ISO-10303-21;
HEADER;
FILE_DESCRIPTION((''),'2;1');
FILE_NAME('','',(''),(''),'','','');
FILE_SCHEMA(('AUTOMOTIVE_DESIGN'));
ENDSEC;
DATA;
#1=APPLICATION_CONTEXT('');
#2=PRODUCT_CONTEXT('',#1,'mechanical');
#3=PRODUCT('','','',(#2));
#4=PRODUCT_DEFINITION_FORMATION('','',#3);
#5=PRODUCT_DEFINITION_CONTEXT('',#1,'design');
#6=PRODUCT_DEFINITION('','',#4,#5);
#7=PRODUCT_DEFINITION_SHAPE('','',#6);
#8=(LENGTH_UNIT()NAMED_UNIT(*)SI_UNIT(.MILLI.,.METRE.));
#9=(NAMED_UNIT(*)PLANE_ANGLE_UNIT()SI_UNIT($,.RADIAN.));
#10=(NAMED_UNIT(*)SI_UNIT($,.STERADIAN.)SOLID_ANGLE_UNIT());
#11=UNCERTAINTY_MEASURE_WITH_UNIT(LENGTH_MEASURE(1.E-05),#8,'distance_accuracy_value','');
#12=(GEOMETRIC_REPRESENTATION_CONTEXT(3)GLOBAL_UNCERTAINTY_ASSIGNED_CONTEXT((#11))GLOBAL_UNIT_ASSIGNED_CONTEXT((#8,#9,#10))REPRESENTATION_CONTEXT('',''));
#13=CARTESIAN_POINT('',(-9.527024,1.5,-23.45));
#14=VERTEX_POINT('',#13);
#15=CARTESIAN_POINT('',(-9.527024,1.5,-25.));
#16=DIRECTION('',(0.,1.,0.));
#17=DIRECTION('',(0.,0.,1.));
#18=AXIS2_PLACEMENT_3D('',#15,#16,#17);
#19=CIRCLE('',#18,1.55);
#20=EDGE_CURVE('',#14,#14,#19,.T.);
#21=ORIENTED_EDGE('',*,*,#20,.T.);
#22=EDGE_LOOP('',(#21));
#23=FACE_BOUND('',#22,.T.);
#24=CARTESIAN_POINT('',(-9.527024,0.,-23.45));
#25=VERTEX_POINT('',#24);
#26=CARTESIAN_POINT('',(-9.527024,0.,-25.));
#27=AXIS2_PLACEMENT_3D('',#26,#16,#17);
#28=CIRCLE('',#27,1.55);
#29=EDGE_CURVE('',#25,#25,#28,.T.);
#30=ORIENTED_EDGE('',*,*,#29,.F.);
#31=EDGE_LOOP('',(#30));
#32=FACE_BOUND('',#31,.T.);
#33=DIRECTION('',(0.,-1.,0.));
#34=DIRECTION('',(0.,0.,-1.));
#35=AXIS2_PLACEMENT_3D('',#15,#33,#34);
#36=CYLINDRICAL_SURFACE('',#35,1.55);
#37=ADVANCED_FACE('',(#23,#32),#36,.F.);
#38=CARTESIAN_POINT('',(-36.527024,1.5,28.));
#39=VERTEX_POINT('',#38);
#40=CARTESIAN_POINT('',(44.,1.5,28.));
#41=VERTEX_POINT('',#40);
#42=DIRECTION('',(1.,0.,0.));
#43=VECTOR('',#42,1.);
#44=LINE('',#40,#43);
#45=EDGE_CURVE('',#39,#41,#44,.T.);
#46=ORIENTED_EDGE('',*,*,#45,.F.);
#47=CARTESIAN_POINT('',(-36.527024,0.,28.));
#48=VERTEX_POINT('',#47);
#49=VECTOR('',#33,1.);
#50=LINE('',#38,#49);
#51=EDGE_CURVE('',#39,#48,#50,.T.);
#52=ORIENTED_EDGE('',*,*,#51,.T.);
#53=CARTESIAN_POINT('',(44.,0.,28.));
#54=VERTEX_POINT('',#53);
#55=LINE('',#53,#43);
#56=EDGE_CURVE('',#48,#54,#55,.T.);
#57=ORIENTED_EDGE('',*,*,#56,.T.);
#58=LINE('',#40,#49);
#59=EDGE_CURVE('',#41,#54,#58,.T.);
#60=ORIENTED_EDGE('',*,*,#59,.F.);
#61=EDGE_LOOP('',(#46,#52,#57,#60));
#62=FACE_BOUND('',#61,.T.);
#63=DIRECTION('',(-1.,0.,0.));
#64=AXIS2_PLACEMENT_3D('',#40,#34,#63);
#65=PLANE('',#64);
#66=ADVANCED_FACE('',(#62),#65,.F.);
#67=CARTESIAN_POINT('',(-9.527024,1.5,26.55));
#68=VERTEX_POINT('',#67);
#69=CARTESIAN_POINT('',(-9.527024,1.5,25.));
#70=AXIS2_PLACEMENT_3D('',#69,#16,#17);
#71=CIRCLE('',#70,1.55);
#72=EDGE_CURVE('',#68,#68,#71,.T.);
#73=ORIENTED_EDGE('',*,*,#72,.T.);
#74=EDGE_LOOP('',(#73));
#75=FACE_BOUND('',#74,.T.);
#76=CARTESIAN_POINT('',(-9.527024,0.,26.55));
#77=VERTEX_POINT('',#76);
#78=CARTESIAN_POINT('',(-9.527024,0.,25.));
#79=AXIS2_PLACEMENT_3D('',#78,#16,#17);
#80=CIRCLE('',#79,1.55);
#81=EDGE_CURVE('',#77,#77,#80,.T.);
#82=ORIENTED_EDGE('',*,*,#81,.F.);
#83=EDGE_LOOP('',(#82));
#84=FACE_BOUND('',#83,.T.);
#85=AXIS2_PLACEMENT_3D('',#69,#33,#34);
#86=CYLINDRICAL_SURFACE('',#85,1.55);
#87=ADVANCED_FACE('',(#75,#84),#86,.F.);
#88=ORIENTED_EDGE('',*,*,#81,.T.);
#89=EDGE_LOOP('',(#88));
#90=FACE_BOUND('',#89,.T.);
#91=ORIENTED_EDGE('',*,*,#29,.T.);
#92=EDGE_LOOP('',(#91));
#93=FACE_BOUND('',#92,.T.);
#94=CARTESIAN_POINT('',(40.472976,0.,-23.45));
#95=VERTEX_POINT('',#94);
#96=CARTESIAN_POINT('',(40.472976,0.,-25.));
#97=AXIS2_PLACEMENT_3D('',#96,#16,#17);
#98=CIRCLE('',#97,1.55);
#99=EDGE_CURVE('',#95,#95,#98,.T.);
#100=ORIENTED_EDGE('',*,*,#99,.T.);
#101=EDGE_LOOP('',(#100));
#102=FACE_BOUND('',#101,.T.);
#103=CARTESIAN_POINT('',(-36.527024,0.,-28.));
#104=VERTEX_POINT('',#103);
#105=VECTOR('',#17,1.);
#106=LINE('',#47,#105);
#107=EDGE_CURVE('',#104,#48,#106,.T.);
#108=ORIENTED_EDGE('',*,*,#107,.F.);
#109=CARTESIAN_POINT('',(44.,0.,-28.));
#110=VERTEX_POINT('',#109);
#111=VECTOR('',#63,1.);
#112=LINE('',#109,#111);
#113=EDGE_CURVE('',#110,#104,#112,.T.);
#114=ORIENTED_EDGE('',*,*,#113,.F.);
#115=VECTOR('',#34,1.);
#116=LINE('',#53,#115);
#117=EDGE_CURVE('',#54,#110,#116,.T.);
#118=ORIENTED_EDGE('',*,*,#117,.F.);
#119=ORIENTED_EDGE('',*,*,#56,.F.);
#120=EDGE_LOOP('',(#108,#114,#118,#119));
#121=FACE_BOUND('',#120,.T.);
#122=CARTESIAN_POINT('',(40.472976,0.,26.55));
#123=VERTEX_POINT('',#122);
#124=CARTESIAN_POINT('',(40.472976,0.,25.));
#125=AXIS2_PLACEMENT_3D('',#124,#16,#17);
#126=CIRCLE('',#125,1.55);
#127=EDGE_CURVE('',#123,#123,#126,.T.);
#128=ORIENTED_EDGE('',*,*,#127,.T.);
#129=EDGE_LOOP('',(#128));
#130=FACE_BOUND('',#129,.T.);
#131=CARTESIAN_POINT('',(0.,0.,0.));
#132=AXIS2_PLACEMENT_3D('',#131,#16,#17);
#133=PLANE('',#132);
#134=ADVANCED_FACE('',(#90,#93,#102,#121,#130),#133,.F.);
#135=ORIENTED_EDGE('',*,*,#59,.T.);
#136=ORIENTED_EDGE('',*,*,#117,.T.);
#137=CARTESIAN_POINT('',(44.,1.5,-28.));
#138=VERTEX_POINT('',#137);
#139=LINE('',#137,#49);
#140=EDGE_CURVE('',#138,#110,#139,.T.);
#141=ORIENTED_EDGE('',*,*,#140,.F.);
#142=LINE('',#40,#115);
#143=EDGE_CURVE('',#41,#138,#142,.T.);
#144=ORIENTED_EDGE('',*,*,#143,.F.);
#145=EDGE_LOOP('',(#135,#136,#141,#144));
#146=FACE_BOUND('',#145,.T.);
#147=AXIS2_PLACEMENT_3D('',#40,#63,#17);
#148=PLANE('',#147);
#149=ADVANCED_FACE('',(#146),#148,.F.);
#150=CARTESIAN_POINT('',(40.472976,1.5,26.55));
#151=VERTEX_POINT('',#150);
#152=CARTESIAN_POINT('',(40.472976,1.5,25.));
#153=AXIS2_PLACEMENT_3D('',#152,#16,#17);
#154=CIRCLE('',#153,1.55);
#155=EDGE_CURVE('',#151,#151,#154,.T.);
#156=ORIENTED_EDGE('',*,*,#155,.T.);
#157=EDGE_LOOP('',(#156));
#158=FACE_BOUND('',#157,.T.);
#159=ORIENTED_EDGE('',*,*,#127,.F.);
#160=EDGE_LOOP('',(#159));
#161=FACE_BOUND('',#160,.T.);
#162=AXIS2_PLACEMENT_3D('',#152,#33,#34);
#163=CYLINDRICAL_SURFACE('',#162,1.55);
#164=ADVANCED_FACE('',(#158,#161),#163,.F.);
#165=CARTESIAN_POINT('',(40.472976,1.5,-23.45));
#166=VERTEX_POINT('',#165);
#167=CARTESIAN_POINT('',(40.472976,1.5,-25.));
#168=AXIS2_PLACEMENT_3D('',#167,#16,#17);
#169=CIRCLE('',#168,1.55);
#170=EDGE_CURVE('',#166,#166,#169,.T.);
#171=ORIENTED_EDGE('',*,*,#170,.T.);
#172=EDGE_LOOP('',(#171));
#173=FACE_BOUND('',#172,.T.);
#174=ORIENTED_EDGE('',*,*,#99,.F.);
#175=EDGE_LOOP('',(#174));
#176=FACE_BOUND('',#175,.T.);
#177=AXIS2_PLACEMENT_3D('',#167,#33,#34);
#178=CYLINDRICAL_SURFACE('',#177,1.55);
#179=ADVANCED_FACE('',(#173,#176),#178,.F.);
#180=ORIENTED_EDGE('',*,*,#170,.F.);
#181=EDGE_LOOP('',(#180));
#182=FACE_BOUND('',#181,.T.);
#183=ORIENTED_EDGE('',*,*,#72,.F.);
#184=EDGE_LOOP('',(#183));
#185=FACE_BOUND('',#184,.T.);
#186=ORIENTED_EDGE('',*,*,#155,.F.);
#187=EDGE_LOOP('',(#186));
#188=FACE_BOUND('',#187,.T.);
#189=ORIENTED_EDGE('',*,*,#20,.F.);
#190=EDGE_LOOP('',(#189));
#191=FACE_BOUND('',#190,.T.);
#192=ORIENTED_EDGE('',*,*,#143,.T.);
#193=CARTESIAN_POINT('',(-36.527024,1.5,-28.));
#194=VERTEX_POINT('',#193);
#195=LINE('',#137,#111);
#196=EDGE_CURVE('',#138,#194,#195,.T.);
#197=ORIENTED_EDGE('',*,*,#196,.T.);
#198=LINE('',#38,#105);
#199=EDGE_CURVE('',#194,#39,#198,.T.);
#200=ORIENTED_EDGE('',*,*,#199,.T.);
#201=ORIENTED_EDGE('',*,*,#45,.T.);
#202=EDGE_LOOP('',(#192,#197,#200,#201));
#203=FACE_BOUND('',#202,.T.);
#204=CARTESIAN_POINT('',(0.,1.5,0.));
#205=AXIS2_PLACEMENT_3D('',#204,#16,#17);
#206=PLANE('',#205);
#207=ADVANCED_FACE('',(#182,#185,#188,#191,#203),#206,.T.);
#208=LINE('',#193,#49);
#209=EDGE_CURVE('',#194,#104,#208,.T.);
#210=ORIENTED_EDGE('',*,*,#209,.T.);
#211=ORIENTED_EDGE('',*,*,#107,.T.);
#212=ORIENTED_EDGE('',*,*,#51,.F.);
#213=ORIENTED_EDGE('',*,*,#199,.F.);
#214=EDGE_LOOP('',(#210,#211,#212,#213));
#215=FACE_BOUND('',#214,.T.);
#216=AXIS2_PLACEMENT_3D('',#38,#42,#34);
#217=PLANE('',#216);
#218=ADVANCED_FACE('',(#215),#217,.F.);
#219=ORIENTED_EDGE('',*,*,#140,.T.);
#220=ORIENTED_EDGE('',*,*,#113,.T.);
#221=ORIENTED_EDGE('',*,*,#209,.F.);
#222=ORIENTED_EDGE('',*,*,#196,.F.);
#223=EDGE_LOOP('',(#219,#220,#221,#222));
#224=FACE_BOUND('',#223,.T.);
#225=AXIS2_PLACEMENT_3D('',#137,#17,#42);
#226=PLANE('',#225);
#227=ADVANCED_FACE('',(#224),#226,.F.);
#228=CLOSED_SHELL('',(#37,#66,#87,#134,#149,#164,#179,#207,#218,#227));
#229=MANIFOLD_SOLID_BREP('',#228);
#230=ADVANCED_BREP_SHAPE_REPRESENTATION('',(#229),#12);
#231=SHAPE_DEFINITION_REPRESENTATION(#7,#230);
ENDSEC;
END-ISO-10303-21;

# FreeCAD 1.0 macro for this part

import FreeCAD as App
import Part
import Sketcher

doc = App.newDocument("Part")
body = doc.addObject("PartDesign::Body", "Body")

# Sketch on XZ plane
sketch1 = body.newObject("Sketcher::SketchObject", "Sketch")
sketch1.AttachmentSupport = (doc.getObject("XZ_Plane"), [""])
sketch1.MapMode = "FlatFace"
sketch1.addGeometry([
    Part.LineSegment(App.Vector(-36.5, -28, 0), App.Vector(-36.5, 28, 0)),  # 0
    Part.LineSegment(App.Vector(-36.5, 28, 0), App.Vector(44, 28, 0)),  # 1
    Part.LineSegment(App.Vector(44, 28, 0), App.Vector(44, -28, 0)),  # 2
    Part.LineSegment(App.Vector(44, -28, 0), App.Vector(-36.5, -28, 0)),  # 3
    Part.Circle(App.Vector(-9.5, 25, 0), App.Vector(0, 0, 1), 1.6),  # 4
    Part.Circle(App.Vector(40.5, 25, 0), App.Vector(0, 0, 1), 1.6),  # 5
    Part.Circle(App.Vector(-9.5, -25, 0), App.Vector(0, 0, 1), 1.6),  # 6
    Part.Circle(App.Vector(40.5, -25, 0), App.Vector(0, 0, 1), 1.6),  # 7
], False)
sketch1.addConstraint([
    Sketcher.Constraint("Coincident", 0, 2, 1, 1),
    Sketcher.Constraint("Coincident", 1, 2, 2, 1),
    Sketcher.Constraint("Coincident", 2, 2, 3, 1),
    Sketcher.Constraint("Coincident", 3, 2, 0, 1),
    Sketcher.Constraint("Vertical", 0),
    Sketcher.Constraint("Horizontal", 1),
    Sketcher.Constraint("Vertical", 2),
    Sketcher.Constraint("Horizontal", 3),
    Sketcher.Constraint("Equal", 4, 5),
    Sketcher.Constraint("Equal", 5, 6),
    Sketcher.Constraint("Equal", 6, 7),
    Sketcher.Constraint("Symmetric", 4, 3, 6, 3, -1),
    Sketcher.Constraint("Symmetric", 5, 3, 7, 3, -1),
    Sketcher.Constraint("Horizontal", 4, 3, 5, 3),
    Sketcher.Constraint("Diameter", 4, 3.1),
    Sketcher.Constraint("DistanceY", 0, 1, 0, 2, 56.0),
    Sketcher.Constraint("DistanceY", -1, 1, 4, 3, 25.0),
    Sketcher.Constraint("DistanceY", -1, 1, 0, 2, 28.0),
    Sketcher.Constraint("DistanceX", -1, 1, 1, 2, 44.0),
    Sketcher.Constraint("DistanceX", 4, 3, 5, 3, 50.0),
    Sketcher.Constraint("DistanceX", 0, 2, 4, 3, 27.0),
    Sketcher.Constraint("DistanceX", 1, 1, 1, 2, 80.527024),
])
pad1 = body.newObject("PartDesign::Pad", "Pad")
pad1.Profile = sketch1
pad1.Length = 1.5
pad1.Reversed = True

doc.recompute()
